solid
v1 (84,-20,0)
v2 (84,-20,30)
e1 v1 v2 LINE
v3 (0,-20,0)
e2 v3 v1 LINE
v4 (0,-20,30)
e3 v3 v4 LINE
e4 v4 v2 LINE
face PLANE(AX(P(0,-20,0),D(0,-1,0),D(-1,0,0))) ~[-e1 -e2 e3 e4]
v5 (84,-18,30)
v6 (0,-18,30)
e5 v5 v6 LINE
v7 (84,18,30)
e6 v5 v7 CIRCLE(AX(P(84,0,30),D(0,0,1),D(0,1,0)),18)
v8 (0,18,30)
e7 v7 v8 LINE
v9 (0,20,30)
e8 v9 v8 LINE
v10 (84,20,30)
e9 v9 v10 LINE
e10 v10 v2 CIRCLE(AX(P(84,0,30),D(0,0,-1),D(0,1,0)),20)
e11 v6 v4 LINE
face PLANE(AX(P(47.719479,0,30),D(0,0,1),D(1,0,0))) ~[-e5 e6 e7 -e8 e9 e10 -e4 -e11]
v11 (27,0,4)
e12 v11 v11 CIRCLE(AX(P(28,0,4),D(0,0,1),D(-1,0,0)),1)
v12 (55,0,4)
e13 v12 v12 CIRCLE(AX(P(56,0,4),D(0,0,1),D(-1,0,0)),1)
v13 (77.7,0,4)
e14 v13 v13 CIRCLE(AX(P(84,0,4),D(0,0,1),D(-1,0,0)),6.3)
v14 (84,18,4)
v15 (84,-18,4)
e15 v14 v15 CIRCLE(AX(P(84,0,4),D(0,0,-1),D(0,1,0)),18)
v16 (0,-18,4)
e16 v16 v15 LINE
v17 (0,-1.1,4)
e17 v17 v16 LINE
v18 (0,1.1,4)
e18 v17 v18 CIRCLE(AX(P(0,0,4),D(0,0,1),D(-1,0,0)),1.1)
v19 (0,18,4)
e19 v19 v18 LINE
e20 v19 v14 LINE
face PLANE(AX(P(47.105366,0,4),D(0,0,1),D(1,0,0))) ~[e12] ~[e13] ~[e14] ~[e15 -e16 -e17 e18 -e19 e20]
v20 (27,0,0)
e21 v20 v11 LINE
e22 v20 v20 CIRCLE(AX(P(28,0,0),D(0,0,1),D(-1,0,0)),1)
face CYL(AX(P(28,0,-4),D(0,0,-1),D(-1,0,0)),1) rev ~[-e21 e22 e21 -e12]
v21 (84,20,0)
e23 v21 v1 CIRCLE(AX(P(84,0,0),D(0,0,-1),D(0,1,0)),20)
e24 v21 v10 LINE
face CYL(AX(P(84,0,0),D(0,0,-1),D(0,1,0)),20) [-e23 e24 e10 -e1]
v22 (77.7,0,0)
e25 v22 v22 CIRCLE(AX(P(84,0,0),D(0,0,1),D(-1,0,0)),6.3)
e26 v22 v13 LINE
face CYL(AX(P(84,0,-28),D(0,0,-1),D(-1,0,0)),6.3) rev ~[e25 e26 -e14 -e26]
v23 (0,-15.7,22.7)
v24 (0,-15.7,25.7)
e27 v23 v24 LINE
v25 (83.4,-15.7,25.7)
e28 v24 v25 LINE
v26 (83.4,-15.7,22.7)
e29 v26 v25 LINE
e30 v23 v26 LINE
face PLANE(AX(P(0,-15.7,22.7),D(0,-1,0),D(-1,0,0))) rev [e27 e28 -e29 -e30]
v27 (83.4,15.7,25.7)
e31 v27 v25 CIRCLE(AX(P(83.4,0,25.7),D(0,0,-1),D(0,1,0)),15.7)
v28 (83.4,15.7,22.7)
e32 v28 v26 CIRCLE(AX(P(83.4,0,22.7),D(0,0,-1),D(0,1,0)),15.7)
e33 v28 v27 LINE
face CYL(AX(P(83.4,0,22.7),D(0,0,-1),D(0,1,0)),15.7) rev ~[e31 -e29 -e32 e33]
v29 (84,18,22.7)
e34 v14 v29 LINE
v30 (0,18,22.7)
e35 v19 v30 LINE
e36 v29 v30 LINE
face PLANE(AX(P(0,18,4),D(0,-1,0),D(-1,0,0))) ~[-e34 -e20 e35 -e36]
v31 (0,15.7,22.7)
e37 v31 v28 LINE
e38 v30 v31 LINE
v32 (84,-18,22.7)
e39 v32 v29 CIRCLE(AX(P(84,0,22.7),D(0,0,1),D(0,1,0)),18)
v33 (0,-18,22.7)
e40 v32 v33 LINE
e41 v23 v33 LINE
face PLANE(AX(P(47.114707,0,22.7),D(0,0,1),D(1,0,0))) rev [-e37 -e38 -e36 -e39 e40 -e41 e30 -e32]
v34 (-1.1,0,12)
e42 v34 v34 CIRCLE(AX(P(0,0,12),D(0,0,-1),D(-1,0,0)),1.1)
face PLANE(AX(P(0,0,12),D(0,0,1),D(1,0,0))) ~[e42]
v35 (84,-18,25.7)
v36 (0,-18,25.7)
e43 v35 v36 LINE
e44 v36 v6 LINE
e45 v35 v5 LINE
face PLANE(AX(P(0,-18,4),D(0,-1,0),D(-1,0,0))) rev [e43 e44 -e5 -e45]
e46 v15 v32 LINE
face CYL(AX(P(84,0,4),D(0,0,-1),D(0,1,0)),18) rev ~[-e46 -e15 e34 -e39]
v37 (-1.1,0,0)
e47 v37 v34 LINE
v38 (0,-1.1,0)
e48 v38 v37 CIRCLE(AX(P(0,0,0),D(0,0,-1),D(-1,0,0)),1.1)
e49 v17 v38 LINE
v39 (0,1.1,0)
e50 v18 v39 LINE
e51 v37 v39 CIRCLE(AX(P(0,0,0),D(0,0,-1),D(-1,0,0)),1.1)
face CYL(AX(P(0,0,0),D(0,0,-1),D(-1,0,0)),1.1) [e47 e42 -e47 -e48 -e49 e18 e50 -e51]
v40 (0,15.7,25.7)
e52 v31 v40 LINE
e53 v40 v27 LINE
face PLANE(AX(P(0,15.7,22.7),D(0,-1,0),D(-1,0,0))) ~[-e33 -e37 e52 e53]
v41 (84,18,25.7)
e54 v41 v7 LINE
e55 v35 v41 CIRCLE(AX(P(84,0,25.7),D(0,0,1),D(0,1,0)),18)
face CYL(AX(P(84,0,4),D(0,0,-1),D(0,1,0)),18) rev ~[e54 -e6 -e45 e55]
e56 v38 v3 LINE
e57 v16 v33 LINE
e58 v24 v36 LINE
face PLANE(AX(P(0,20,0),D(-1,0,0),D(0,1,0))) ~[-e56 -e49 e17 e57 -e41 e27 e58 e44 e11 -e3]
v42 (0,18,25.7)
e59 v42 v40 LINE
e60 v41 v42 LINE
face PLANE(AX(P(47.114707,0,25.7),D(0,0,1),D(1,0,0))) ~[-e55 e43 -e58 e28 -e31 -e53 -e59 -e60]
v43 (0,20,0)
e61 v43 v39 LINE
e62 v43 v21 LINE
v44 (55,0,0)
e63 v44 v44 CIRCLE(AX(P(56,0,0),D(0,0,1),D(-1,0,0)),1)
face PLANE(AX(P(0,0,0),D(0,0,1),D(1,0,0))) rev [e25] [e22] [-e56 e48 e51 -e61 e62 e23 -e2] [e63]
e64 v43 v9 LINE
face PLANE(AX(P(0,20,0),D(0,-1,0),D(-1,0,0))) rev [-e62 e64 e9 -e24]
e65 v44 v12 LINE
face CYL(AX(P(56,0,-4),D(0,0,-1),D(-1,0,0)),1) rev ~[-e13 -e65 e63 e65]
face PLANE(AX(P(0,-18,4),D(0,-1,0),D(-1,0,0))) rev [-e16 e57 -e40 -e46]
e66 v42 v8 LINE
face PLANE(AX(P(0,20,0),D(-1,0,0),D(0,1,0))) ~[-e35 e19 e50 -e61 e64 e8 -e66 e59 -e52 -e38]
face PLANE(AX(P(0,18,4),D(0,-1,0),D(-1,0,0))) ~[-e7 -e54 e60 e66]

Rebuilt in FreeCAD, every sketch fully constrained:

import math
import FreeCAD as App
import Part
import Sketcher
Q = App.Units.Quantity

doc = App.newDocument("Part")
body = doc.addObject("PartDesign::Body", "Body")

sketch1 = body.newObject("Sketcher::SketchObject", "Sketch")
sketch1.AttachmentSupport = (doc.getObject("XY_Plane"), [""])
sketch1.MapMode = "FlatFace"
sketch1.AttachmentOffset = App.Placement(App.Vector(0, 0, -4), App.Rotation())
sketch1.addGeometry(Part.Circle(App.Vector(-28, 0, 0), App.Vector(0, 0, 1), 1), False)
sketch1.addConstraint([
    Sketcher.Constraint("PointOnObject", 0, 3, -1),
    Sketcher.Constraint("Diameter", 0, Q("2 mm")),
    Sketcher.Constraint("DistanceX", 0, 3, -1, 1, Q("28 mm")),
])
pad1 = body.newObject("PartDesign::Pad", "Pad")
pad1.Profile = sketch1
pad1.Length = 10
body2 = doc.addObject("PartDesign::Body", "Body001")
body2.AllowCompound = True

sketch2 = body2.newObject("Sketcher::SketchObject", "Sketch001")
sketch2.AttachmentSupport = (doc.getObject("XY_Plane001"), [""])
sketch2.MapMode = "FlatFace"
sketch2.AttachmentOffset = App.Placement(App.Vector(0, 0, -4), App.Rotation())
sketch2.addGeometry(Part.Circle(App.Vector(-56, 0, 0), App.Vector(0, 0, 1), 1), False)
sketch2.addConstraint([
    Sketcher.Constraint("PointOnObject", 0, 3, -1),
    Sketcher.Constraint("Diameter", 0, Q("2 mm")),
    Sketcher.Constraint("DistanceX", 0, 3, -1, 1, Q("56 mm")),
])
pad2 = body2.newObject("PartDesign::Pad", "Pad001")
pad2.Profile = sketch2
pad2.Length = 10
doc.recompute()

boolean = body2.newObject("PartDesign::Boolean", "Boolean")
boolean.Type = "Fuse"
boolean.addObjects([body])
body3 = doc.addObject("PartDesign::Body", "Body002")

sketch3 = body3.newObject("Sketcher::SketchObject", "Sketch002")
sketch3.AttachmentSupport = (doc.getObject("XY_Plane002"), [""])
sketch3.MapMode = "FlatFace"
sketch3.addGeometry(Part.Circle(App.Vector(0, 0, 0), App.Vector(0, 0, 1), 1.1), False)
sketch3.addConstraint([
    Sketcher.Constraint("Coincident", 0, 3, -1, 1),
    Sketcher.Constraint("Diameter", 0, Q("2.2 mm")),
])
pad3 = body3.newObject("PartDesign::Pad", "Pad002")
pad3.Profile = sketch3
pad3.Length = 12
body4 = doc.addObject("PartDesign::Body", "Body003")

sketch4 = body4.newObject("Sketcher::SketchObject", "Sketch003")
sketch4.AttachmentSupport = (doc.getObject("XY_Plane003"), [""])
sketch4.MapMode = "FlatFace"
sketch4.AttachmentOffset = App.Placement(App.Vector(0, 0, -28), App.Rotation())
sketch4.addGeometry(Part.Circle(App.Vector(-84, 0, 0), App.Vector(0, 0, 1), 6), False)
sketch4.addConstraint([
    Sketcher.Constraint("PointOnObject", 0, 3, -1),
    Sketcher.Constraint("Diameter", 0, Q("12.6 mm")),
    Sketcher.Constraint("DistanceX", 0, 3, -1, 1, Q("84 mm")),
])
pad4 = body4.newObject("PartDesign::Pad", "Pad003")
pad4.Profile = sketch4
pad4.Length = 52
body5 = doc.addObject("PartDesign::Body", "Body004")

sketch5 = body5.newObject("Sketcher::SketchObject", "Sketch004")
sketch5.AttachmentSupport = (doc.getObject("XY_Plane004"), [""])
sketch5.MapMode = "FlatFace"
sketch5.addGeometry([
    Part.LineSegment(App.Vector(0, 18, 0), App.Vector(-84, 18, 0)),
    Part.ArcOfCircle(Part.Circle(App.Vector(-84, 0, 0), App.Vector(0, 0, 1), 18), math.radians(90), math.radians(270)),
    Part.LineSegment(App.Vector(-84, -18, 0), App.Vector(0, -18, 0)),
    Part.LineSegment(App.Vector(0, -18, 0), App.Vector(0, 18, 0)),
], False)
sketch5.addConstraint([
    Sketcher.Constraint("Tangent", 0, 2, 1, 1),
    Sketcher.Constraint("Tangent", 1, 2, 2, 1),
    Sketcher.Constraint("Coincident", 2, 2, 3, 1),
    Sketcher.Constraint("Coincident", 3, 2, 0, 1),
    Sketcher.Constraint("Horizontal", 0),
    Sketcher.Constraint("Horizontal", 2),
    Sketcher.Constraint("Vertical", 3),
    Sketcher.Constraint("Symmetric", 2, 2, 3, 2, -1, 1),
    Sketcher.Constraint("Radius", 1, Q("18 mm")),
    Sketcher.Constraint("DistanceX", 0, 2, 0, 1, Q("84 mm")),
])
pad5 = body5.newObject("PartDesign::Pad", "Pad004")
pad5.Profile = sketch5
pad5.Length = 30
body6 = doc.addObject("PartDesign::Body", "Body005")
doc.recompute()

body5.Placement = App.Placement(App.Vector(0, 0, 4), App.Rotation(App.Vector(0, 0, 1), 0))
boolean2 = body6.newObject("PartDesign::Boolean", "Boolean001")
boolean2.Type = "Fuse"
boolean2.addObjects([body5])
body7 = doc.addObject("PartDesign::Body", "Body006")

sketch6 = body7.newObject("Sketcher::SketchObject", "Sketch005")
sketch6.AttachmentSupport = (doc.getObject("XY_Plane006"), [""])
sketch6.MapMode = "FlatFace"
sketch6.addGeometry([
    Part.LineSegment(App.Vector(0, 20, 0), App.Vector(-84, 20, 0)),
    Part.ArcOfCircle(Part.Circle(App.Vector(-84, 0, 0), App.Vector(0, 0, 1), 20), math.radians(90), math.radians(270)),
    Part.LineSegment(App.Vector(-84, -20, 0), App.Vector(0, -20, 0)),
    Part.LineSegment(App.Vector(0, -20, 0), App.Vector(0, 20, 0)),
], False)
sketch6.addConstraint([
    Sketcher.Constraint("Tangent", 0, 2, 1, 1),
    Sketcher.Constraint("Tangent", 1, 2, 2, 1),
    Sketcher.Constraint("Coincident", 2, 2, 3, 1),
    Sketcher.Constraint("Coincident", 3, 2, 0, 1),
    Sketcher.Constraint("Horizontal", 0),
    Sketcher.Constraint("Horizontal", 2),
    Sketcher.Constraint("Vertical", 3),
    Sketcher.Constraint("Symmetric", 2, 2, 3, 2, -1, 1),
    Sketcher.Constraint("Radius", 1, Q("20 mm")),
    Sketcher.Constraint("DistanceX", 0, 2, 0, 1, Q("84 mm")),
])
pad6 = body7.newObject("PartDesign::Pad", "Pad005")
pad6.Profile = sketch6
pad6.Length = 30
doc.recompute()

boolean3 = body7.newObject("PartDesign::Boolean", "Boolean002")
boolean3.Type = "Cut"
boolean3.addObjects([body6])
doc.recompute()

boolean4 = body7.newObject("PartDesign::Boolean", "Boolean003")
boolean4.Type = "Cut"
boolean4.addObjects([body4])
doc.recompute()

boolean5 = body7.newObject("PartDesign::Boolean", "Boolean004")
boolean5.Type = "Fuse"
boolean5.addObjects([body3])
doc.recompute()

boolean6 = body7.newObject("PartDesign::Boolean", "Boolean005")
boolean6.Type = "Cut"
boolean6.addObjects([body2])
body8 = doc.addObject("PartDesign::Body", "Body007")

sketch7 = body8.newObject("Sketcher::SketchObject", "Sketch006")
sketch7.AttachmentSupport = (doc.getObject("XY_Plane007"), [""])
sketch7.MapMode = "FlatFace"
sketch7.addGeometry([
    Part.LineSegment(App.Vector(0, 16, 0), App.Vector(-83, 16, 0)),
    Part.ArcOfCircle(Part.Circle(App.Vector(-83, 0, 0), App.Vector(0, 0, 1), 16), math.radians(90), math.radians(270)),
    Part.LineSegment(App.Vector(-83, -16, 0), App.Vector(0, -16, 0)),
    Part.LineSegment(App.Vector(0, -16, 0), App.Vector(0, 16, 0)),
], False)
sketch7.addConstraint([
    Sketcher.Constraint("Tangent", 0, 2, 1, 1),
    Sketcher.Constraint("Tangent", 1, 2, 2, 1),
    Sketcher.Constraint("Coincident", 2, 2, 3, 1),
    Sketcher.Constraint("Coincident", 3, 2, 0, 1),
    Sketcher.Constraint("Horizontal", 0),
    Sketcher.Constraint("Horizontal", 2),
    Sketcher.Constraint("Vertical", 3),
    Sketcher.Constraint("Symmetric", 2, 2, 3, 2, -1, 1),
    Sketcher.Constraint("Radius", 1, Q("15.7 mm")),
    Sketcher.Constraint("DistanceX", 0, 2, 0, 1, Q("83.4 mm")),
])
pad7 = body8.newObject("PartDesign::Pad", "Pad006")
pad7.Profile = sketch7
pad7.Length = 3
body9 = doc.addObject("PartDesign::Body", "Body008")
doc.recompute()

body8.Placement = App.Placement(App.Vector(0, 0, 26), App.Rotation(App.Vector(0, 0, 1), 0))
boolean7 = body9.newObject("PartDesign::Boolean", "Boolean006")
boolean7.Type = "Fuse"
boolean7.addObjects([body8])
body10 = doc.addObject("PartDesign::Body", "Body009")

sketch8 = body10.newObject("Sketcher::SketchObject", "Sketch007")
sketch8.AttachmentSupport = (doc.getObject("XY_Plane009"), [""])
sketch8.MapMode = "FlatFace"
sketch8.addGeometry([
    Part.LineSegment(App.Vector(0, 19, 0), App.Vector(-83, 19, 0)),
    Part.ArcOfCircle(Part.Circle(App.Vector(-83, 0, 0), App.Vector(0, 0, 1), 19), math.radians(90), math.radians(270)),
    Part.LineSegment(App.Vector(-83, -19, 0), App.Vector(0, -19, 0)),
    Part.LineSegment(App.Vector(0, -19, 0), App.Vector(0, 19, 0)),
], False)
sketch8.addConstraint([
    Sketcher.Constraint("Tangent", 0, 2, 1, 1),
    Sketcher.Constraint("Tangent", 1, 2, 2, 1),
    Sketcher.Constraint("Coincident", 2, 2, 3, 1),
    Sketcher.Constraint("Coincident", 3, 2, 0, 1),
    Sketcher.Constraint("Horizontal", 0),
    Sketcher.Constraint("Horizontal", 2),
    Sketcher.Constraint("Vertical", 3),
    Sketcher.Constraint("Symmetric", 2, 2, 3, 2, -1, 1),
    Sketcher.Constraint("Radius", 1, Q("19 mm")),
    Sketcher.Constraint("DistanceX", 0, 2, 0, 1, Q("83.4 mm")),
])
pad8 = body10.newObject("PartDesign::Pad", "Pad007")
pad8.Profile = sketch8
pad8.Length = 3
body11 = doc.addObject("PartDesign::Body", "Body010")
doc.recompute()

body10.Placement = App.Placement(App.Vector(0, 0, 26), App.Rotation(App.Vector(0, 0, 1), 0))
boolean8 = body11.newObject("PartDesign::Boolean", "Boolean007")
boolean8.Type = "Fuse"
boolean8.addObjects([body10])
doc.recompute()

boolean9 = body11.newObject("PartDesign::Boolean", "Boolean008")
boolean9.Type = "Cut"
boolean9.addObjects([body9])
body12 = doc.addObject("PartDesign::Body", "Body011")
doc.recompute()

body11.Placement = App.Placement(App.Vector(0, 0, -3.3), App.Rotation(App.Vector(0, 0, 1), 0))
boolean10 = body12.newObject("PartDesign::Boolean", "Boolean009")
boolean10.Type = "Fuse"
boolean10.addObjects([body11])
doc.recompute()

boolean11 = body12.newObject("PartDesign::Boolean", "Boolean010")
boolean11.Type = "Fuse"
boolean11.addObjects([body7])
body13 = doc.addObject("PartDesign::Body", "Body012")
doc.recompute()

mirroring = doc.addObject("Part::Mirroring", "Mirroring")
mirroring.Source = body12
mirroring.Base = App.Vector(0, 0, 0)
mirroring.Normal = App.Vector(1, 0, 0)
body13.BaseFeature = mirroring
doc.recompute()
body12.Visibility = False
mirroring.Visibility = False

doc.recompute()
